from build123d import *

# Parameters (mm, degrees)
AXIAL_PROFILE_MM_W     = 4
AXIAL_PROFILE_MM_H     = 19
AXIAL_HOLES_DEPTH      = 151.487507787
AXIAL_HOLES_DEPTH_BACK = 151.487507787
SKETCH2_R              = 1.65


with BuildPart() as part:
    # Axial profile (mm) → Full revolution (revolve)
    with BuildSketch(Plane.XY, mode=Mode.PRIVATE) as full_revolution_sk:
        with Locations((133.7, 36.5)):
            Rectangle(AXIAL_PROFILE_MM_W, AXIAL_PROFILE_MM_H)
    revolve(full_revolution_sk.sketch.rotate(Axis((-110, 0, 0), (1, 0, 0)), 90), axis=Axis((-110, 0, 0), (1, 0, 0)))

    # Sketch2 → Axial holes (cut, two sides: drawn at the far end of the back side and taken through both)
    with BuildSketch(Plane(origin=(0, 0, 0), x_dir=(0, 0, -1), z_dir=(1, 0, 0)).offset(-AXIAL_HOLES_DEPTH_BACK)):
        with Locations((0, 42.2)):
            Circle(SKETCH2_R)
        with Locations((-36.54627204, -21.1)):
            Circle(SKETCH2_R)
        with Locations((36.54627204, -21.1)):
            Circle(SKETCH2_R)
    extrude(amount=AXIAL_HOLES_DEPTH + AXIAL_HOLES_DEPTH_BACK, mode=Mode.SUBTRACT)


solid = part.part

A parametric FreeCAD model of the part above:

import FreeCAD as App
import Part
import Sketcher

V = App.Vector

doc = App.newDocument("Part")
body = doc.addObject("PartDesign::Body", "Body")

# Sketch on XY plane
sketch1 = body.newObject("Sketcher::SketchObject", "Sketch")
sketch1.AttachmentSupport = (doc.getObject("XY_Plane"), [""])
sketch1.MapMode = "FlatFace"
sketch1.addGeometry(Part.LineSegment(V(131.7, 46, 0), V(131.7, 27, 0)), False)
sketch1.addGeometry(Part.LineSegment(V(131.7, 27, 0), V(135.7, 27, 0)), False)
sketch1.addGeometry(Part.LineSegment(V(135.7, 27, 0), V(135.7, 46, 0)), False)
sketch1.addGeometry(Part.LineSegment(V(135.7, 46, 0), V(131.7, 46, 0)), False)
sketch1.addConstraint(Sketcher.Constraint("Coincident", 0, 2, 1, 1))
sketch1.addConstraint(Sketcher.Constraint("Coincident", 1, 2, 2, 1))
sketch1.addConstraint(Sketcher.Constraint("Coincident", 2, 2, 3, 1))
sketch1.addConstraint(Sketcher.Constraint("Coincident", 3, 2, 0, 1))
sketch1.addConstraint(Sketcher.Constraint("Vertical", 0))
sketch1.addConstraint(Sketcher.Constraint("Horizontal", 1))
sketch1.addConstraint(Sketcher.Constraint("Vertical", 2))
sketch1.addConstraint(Sketcher.Constraint("Horizontal", 3))
sketch1.addConstraint(Sketcher.Constraint("DistanceX", 1, 1, 1, 2, 4.0))
sketch1.addConstraint(Sketcher.Constraint("DistanceY", 0, 2, 0, 1, 19.0))
sketch1.addConstraint(Sketcher.Constraint("DistanceY", -1, 1, 0, 2, 27.0))
sketch1.addConstraint(Sketcher.Constraint("DistanceX", -1, 1, 0, 2, 131.7))
revolution = body.newObject("PartDesign::Revolution", "Revolution")
revolution.Profile = sketch1
revolution.ReferenceAxis = (sketch1, ["H_Axis"])
revolution.Angle = 360

# Sketch on YZ plane
sketch2 = body.newObject("Sketcher::SketchObject", "Sketch001")
sketch2.AttachmentSupport = (doc.getObject("YZ_Plane"), [""])
sketch2.MapMode = "FlatFace"
sketch2.addGeometry(Part.Circle(V(42.2, 0, 0), V(0, 0, 1), 1.6), False)
sketch2.addGeometry(Part.Circle(V(-21.1, 36.5, 0), V(0, 0, 1), 1.6), False)
sketch2.addGeometry(Part.Circle(V(-21.1, -36.5, 0), V(0, 0, 1), 1.6), False)
sketch2.addConstraint(Sketcher.Constraint("Equal", 0, 1))
sketch2.addConstraint(Sketcher.Constraint("Equal", 1, 2))
sketch2.addConstraint(Sketcher.Constraint("Symmetric", 1, 3, 2, 3, -1))
sketch2.addConstraint(Sketcher.Constraint("PointOnObject", 0, 3, -1))
sketch2.addConstraint(Sketcher.Constraint("Diameter", 0, 3.3))
sketch2.addConstraint(Sketcher.Constraint("DistanceX", -1, 1, 0, 3, 42.2))
sketch2.addConstraint(Sketcher.Constraint("DistanceX", 1, 3, -1, 1, 21.1))
sketch2.addConstraint(Sketcher.Constraint("DistanceY", -1, 1, 1, 3, 36.546272))
pocket1 = body.newObject("PartDesign::Pocket", "Pocket")
pocket1.Profile = sketch2
pocket1.Type = "ThroughAll"
pocket1.Midplane = True

doc.recompute()
